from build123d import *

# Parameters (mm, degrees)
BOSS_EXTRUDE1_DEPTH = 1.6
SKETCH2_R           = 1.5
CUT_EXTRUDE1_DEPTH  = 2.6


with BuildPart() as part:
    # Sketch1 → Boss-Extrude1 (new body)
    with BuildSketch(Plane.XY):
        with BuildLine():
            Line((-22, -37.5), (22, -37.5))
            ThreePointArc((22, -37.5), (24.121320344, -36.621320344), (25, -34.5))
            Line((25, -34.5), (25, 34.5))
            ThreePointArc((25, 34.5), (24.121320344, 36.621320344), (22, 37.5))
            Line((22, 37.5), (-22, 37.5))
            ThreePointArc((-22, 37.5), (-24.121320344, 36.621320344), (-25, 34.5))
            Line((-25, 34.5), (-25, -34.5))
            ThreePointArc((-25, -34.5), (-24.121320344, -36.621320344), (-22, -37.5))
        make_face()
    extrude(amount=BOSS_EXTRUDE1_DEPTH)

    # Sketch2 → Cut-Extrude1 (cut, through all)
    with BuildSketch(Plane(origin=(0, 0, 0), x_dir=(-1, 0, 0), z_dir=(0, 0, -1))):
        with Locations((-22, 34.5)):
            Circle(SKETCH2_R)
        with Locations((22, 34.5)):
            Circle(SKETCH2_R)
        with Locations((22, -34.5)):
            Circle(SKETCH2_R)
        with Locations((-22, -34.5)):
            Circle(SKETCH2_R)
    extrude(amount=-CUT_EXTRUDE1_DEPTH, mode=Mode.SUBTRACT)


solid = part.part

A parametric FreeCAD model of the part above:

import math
import FreeCAD as App
import Part
import Sketcher

V = App.Vector

doc = App.newDocument("Part")
body = doc.addObject("PartDesign::Body", "Body")

sketch1 = doc.addObject("Sketcher::SketchObject", "Sketch")
body.addObject(sketch1)
sketch1.AttachmentSupport = (doc.XY_Plane, [""])
sketch1.MapMode = "FlatFace"
sketch1.addGeometry([
    Part.LineSegment(V(-22, -37.5, 0), V(22, -37.5, 0)),
    Part.ArcOfCircle(Part.Circle(V(22, -34.5, 0), V(0, 0, 1), 3), math.radians(-90), math.radians(0)),
    Part.LineSegment(V(25, -34.5, 0), V(25, 34.5, 0)),
    Part.ArcOfCircle(Part.Circle(V(22, 34.5, 0), V(0, 0, 1), 3), math.radians(0), math.radians(90)),
    Part.LineSegment(V(22, 37.5, 0), V(-22, 37.5, 0)),
    Part.ArcOfCircle(Part.Circle(V(-22, 34.5, 0), V(0, 0, 1), 3), math.radians(90), math.radians(180)),
    Part.LineSegment(V(-25, 34.5, 0), V(-25, -34.5, 0)),
    Part.ArcOfCircle(Part.Circle(V(-22, -34.5, 0), V(0, 0, 1), 3), math.radians(180), math.radians(270)),
], False)
sketch1.addConstraint([
    Sketcher.Constraint("Tangent", 0, 2, 1, 1),
    Sketcher.Constraint("Tangent", 1, 2, 2, 1),
    Sketcher.Constraint("Tangent", 2, 2, 3, 1),
    Sketcher.Constraint("Tangent", 3, 2, 4, 1),
    Sketcher.Constraint("Tangent", 4, 2, 5, 1),
    Sketcher.Constraint("Tangent", 5, 2, 6, 1),
    Sketcher.Constraint("Tangent", 6, 2, 7, 1),
    Sketcher.Constraint("Tangent", 7, 2, 0, 1),
    Sketcher.Constraint("Horizontal", 0),
    Sketcher.Constraint("Vertical", 2),
    Sketcher.Constraint("Horizontal", 4),
    Sketcher.Constraint("Vertical", 6),
    Sketcher.Constraint("Equal", 1, 3),
    Sketcher.Constraint("Equal", 3, 5),
    Sketcher.Constraint("Equal", 5, 7),
    Sketcher.Constraint("Symmetric", 1, 3, 5, 3, -1, 1),
    Sketcher.Constraint("Radius", 1, 3.0),
    Sketcher.Constraint("DistanceX", 0, 1, 0, 2, 44.0),
    Sketcher.Constraint("DistanceY", 2, 1, 2, 2, 69.0),
])
pad1 = doc.addObject("PartDesign::Pad", "Pad")
body.addObject(pad1)
pad1.Profile = sketch1
pad1.Length = 1.6

sketch2 = doc.addObject("Sketcher::SketchObject", "Sketch001")
body.addObject(sketch2)
sketch2.AttachmentSupport = (doc.XY_Plane, [""])
sketch2.MapMode = "FlatFace"
sketch2.addGeometry([
    Part.Circle(V(22, 34.5, 0), V(0, 0, 1), 1.5),
    Part.Circle(V(-22, 34.5, 0), V(0, 0, 1), 1.5),
    Part.Circle(V(-22, -34.5, 0), V(0, 0, 1), 1.5),
    Part.Circle(V(22, -34.5, 0), V(0, 0, 1), 1.5),
], False)
sketch2.addConstraint([
    Sketcher.Constraint("Equal", 0, 1),
    Sketcher.Constraint("Equal", 1, 2),
    Sketcher.Constraint("Equal", 2, 3),
    Sketcher.Constraint("Symmetric", 0, 3, 2, 3, -1, 1),
    Sketcher.Constraint("Symmetric", 1, 3, 3, 3, -1, 1),
    Sketcher.Constraint("Symmetric", 0, 3, 1, 3, -2),
    Sketcher.Constraint("Diameter", 0, 3.0),
    Sketcher.Constraint("DistanceX", -1, 1, 0, 3, 22.0),
    Sketcher.Constraint("DistanceY", 2, 3, 1, 3, 69.0),
])
pocket1 = doc.addObject("PartDesign::Pocket", "Pocket")
body.addObject(pocket1)
pocket1.Profile = sketch2
pocket1.Type = "ThroughAll"
pocket1.Reversed = True

doc.recompute()
